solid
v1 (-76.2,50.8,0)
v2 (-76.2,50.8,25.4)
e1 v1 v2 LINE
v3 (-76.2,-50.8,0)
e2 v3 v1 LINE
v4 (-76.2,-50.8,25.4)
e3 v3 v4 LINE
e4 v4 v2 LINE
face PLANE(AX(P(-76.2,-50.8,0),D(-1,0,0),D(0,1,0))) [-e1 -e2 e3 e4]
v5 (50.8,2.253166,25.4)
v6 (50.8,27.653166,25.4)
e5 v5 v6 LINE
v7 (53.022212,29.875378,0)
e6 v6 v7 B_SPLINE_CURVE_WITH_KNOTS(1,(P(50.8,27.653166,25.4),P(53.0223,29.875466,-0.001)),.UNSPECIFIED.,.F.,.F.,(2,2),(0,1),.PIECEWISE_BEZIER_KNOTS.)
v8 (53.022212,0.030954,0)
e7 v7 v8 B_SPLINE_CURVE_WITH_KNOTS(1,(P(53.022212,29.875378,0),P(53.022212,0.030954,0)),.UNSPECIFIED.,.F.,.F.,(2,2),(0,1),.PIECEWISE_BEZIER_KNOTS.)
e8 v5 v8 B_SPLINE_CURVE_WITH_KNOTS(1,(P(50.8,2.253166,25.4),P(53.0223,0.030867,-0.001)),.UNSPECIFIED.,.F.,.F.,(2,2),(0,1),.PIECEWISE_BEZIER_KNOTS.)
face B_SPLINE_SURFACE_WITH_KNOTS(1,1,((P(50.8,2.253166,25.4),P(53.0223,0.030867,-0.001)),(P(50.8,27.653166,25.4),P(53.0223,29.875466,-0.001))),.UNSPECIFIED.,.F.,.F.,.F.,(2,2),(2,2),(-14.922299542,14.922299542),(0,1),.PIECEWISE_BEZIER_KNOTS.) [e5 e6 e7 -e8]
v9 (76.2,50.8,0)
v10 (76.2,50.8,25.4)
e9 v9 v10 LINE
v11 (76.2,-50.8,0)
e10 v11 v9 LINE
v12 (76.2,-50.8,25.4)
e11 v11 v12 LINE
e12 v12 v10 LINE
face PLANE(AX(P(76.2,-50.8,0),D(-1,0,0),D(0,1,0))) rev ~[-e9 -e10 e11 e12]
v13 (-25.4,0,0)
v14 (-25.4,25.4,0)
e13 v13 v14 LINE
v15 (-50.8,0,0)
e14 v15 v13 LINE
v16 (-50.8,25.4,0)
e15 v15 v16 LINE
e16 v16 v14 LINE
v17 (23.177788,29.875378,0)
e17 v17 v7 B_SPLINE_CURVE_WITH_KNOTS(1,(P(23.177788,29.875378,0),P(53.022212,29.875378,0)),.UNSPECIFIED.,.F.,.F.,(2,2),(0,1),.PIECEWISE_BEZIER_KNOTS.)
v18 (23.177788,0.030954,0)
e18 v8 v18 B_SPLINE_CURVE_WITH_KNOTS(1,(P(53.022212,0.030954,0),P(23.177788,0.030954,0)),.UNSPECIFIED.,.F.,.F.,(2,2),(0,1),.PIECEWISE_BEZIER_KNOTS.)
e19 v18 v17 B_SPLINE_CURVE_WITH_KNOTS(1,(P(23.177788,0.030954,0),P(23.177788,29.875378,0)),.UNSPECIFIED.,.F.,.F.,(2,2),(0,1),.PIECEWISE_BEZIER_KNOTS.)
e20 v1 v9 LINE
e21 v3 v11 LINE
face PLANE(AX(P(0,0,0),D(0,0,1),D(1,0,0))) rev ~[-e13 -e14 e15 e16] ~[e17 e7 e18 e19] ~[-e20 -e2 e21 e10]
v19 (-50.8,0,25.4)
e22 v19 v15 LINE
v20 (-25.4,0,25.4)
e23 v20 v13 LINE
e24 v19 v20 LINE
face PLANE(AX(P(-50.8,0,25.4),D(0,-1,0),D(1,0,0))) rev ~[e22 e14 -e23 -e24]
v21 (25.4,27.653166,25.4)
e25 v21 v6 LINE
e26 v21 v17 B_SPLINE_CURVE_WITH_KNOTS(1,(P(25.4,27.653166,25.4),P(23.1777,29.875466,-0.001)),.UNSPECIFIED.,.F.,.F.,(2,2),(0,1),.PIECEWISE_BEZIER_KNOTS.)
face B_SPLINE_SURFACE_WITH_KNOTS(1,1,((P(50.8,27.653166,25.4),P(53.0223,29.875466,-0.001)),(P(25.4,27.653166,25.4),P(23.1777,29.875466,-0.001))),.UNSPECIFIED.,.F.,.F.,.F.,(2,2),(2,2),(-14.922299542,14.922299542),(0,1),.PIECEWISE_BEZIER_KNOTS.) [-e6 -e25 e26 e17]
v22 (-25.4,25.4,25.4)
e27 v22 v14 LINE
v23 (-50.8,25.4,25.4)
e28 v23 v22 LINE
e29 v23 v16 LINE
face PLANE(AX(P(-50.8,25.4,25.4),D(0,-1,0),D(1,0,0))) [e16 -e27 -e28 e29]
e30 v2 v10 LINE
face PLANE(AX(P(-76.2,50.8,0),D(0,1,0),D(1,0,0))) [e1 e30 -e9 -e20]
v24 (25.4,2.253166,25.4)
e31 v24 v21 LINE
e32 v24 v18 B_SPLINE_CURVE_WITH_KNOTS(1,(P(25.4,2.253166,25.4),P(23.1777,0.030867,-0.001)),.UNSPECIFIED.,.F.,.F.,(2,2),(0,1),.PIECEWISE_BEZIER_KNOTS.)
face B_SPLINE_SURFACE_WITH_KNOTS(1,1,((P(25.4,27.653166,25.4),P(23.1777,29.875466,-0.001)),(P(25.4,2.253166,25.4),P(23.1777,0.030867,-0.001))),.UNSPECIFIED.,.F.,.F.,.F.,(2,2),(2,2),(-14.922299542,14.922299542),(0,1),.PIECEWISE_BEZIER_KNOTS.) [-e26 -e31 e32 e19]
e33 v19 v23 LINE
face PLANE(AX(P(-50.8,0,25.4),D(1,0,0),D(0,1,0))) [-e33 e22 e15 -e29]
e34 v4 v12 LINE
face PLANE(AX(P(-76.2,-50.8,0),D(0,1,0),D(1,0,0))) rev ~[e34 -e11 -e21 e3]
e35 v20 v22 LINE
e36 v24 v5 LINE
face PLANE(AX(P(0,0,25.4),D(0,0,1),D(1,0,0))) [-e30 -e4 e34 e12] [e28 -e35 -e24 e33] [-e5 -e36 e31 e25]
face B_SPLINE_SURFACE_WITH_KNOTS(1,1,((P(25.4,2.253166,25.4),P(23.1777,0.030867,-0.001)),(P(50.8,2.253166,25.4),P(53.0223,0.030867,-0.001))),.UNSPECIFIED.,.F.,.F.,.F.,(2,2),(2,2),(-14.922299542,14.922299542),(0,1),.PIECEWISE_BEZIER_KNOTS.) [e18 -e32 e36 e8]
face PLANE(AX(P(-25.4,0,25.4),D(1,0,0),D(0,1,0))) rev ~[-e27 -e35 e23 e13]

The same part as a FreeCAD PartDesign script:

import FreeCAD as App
import Part
import Sketcher
from FreeCAD import Vector
Q = App.Units.Quantity

doc = App.newDocument("Part")
body = doc.addObject("PartDesign::Body", "Body")

# Sketch on XY plane
sketch1 = doc.addObject("Sketcher::SketchObject", "Sketch")
body.addObject(sketch1)
sketch1.AttachmentSupport = (doc.XY_Plane, [""])
sketch1.MapMode = "FlatFace"
sketch1.addGeometry(Part.LineSegment(Vector(-76, 51, 0), Vector(-76, -51, 0)), False)
sketch1.addGeometry(Part.LineSegment(Vector(-76, -51, 0), Vector(76, -51, 0)), False)
sketch1.addGeometry(Part.LineSegment(Vector(76, -51, 0), Vector(76, 51, 0)), False)
sketch1.addGeometry(Part.LineSegment(Vector(76, 51, 0), Vector(-76, 51, 0)), False)
sketch1.addConstraint(Sketcher.Constraint("Coincident", 0, 2, 1, 1))
sketch1.addConstraint(Sketcher.Constraint("Coincident", 1, 2, 2, 1))
sketch1.addConstraint(Sketcher.Constraint("Coincident", 2, 2, 3, 1))
sketch1.addConstraint(Sketcher.Constraint("Coincident", 3, 2, 0, 1))
sketch1.addConstraint(Sketcher.Constraint("Vertical", 0))
sketch1.addConstraint(Sketcher.Constraint("Horizontal", 1))
sketch1.addConstraint(Sketcher.Constraint("Vertical", 2))
sketch1.addConstraint(Sketcher.Constraint("Horizontal", 3))
sketch1.addConstraint(Sketcher.Constraint("Symmetric", 0, 2, 2, 2, -1, 1))
sketch1.addConstraint(Sketcher.Constraint("DistanceX", 1, 1, 1, 2, Q("6 in")))
sketch1.addConstraint(Sketcher.Constraint("DistanceY", 0, 2, 0, 1, Q("4 in")))
pad1 = doc.addObject("PartDesign::Pad", "Pad")
body.addObject(pad1)
pad1.Profile = sketch1
pad1.Length = Q("1 in")

# Sketch on XY plane
sketch2 = doc.addObject("Sketcher::SketchObject", "Sketch001")
body.addObject(sketch2)
sketch2.AttachmentSupport = (doc.XY_Plane, [""])
sketch2.MapMode = "FlatFace"
sketch2.AttachmentOffset = App.Placement(Vector(0, 0, 1 * 25.4), App.Rotation())
sketch2.addGeometry(Part.LineSegment(Vector(-51, 25, 0), Vector(-51, 0, 0)), False)
sketch2.addGeometry(Part.LineSegment(Vector(-51, 0, 0), Vector(-25, 0, 0)), False)
sketch2.addGeometry(Part.LineSegment(Vector(-25, 0, 0), Vector(-25, 25, 0)), False)
sketch2.addGeometry(Part.LineSegment(Vector(-25, 25, 0), Vector(-51, 25, 0)), False)
sketch2.addConstraint(Sketcher.Constraint("Coincident", 0, 2, 1, 1))
sketch2.addConstraint(Sketcher.Constraint("Coincident", 1, 2, 2, 1))
sketch2.addConstraint(Sketcher.Constraint("Coincident", 2, 2, 3, 1))
sketch2.addConstraint(Sketcher.Constraint("Coincident", 3, 2, 0, 1))
sketch2.addConstraint(Sketcher.Constraint("Vertical", 0))
sketch2.addConstraint(Sketcher.Constraint("Horizontal", 1))
sketch2.addConstraint(Sketcher.Constraint("Vertical", 2))
sketch2.addConstraint(Sketcher.Constraint("Horizontal", 3))
sketch2.addConstraint(Sketcher.Constraint("PointOnObject", 0, 2, -1))
sketch2.addConstraint(Sketcher.Constraint("Equal", 3, 0))
sketch2.addConstraint(Sketcher.Constraint("DistanceX", 1, 1, 1, 2, Q("1 in")))
sketch2.addConstraint(Sketcher.Constraint("DistanceX", 0, 2, -1, 1, Q("2 in")))
pocket1 = doc.addObject("PartDesign::Pocket", "Pocket")
body.addObject(pocket1)
pocket1.Profile = sketch2
pocket1.Type = "ThroughAll"

# Sketch on XY plane
sketch3 = doc.addObject("Sketcher::SketchObject", "Sketch002")
body.addObject(sketch3)
sketch3.AttachmentSupport = (doc.XY_Plane, [""])
sketch3.MapMode = "FlatFace"
sketch3.AttachmentOffset = App.Placement(Vector(0, 0, 1 * 25.4), App.Rotation())
sketch3.addGeometry(Part.LineSegment(Vector(25, 28, 0), Vector(25, 2, 0)), False)
sketch3.addGeometry(Part.LineSegment(Vector(25, 2, 0), Vector(51, 2, 0)), False)
sketch3.addGeometry(Part.LineSegment(Vector(51, 2, 0), Vector(51, 28, 0)), False)
sketch3.addGeometry(Part.LineSegment(Vector(51, 28, 0), Vector(25, 28, 0)), False)
sketch3.addConstraint(Sketcher.Constraint("Coincident", 0, 2, 1, 1))
sketch3.addConstraint(Sketcher.Constraint("Coincident", 1, 2, 2, 1))
sketch3.addConstraint(Sketcher.Constraint("Coincident", 2, 2, 3, 1))
sketch3.addConstraint(Sketcher.Constraint("Coincident", 3, 2, 0, 1))
sketch3.addConstraint(Sketcher.Constraint("Vertical", 0))
sketch3.addConstraint(Sketcher.Constraint("Horizontal", 1))
sketch3.addConstraint(Sketcher.Constraint("Vertical", 2))
sketch3.addConstraint(Sketcher.Constraint("Horizontal", 3))
sketch3.addConstraint(Sketcher.Constraint("Equal", 3, 0))
sketch3.addConstraint(Sketcher.Constraint("DistanceX", 1, 1, 1, 2, Q("1 in")))
sketch3.addConstraint(Sketcher.Constraint("DistanceX", -1, 1, 0, 2, Q("1 in")))
sketch3.addConstraint(Sketcher.Constraint("DistanceY", -1, 1, 0, 2, Q("2.253166 mm")))
pocket2 = doc.addObject("PartDesign::Pocket", "Pocket001")
body.addObject(pocket2)
pocket2.Profile = sketch3
pocket2.Length = 25.401
pocket2.TaperAngle = 5

doc.recompute()
